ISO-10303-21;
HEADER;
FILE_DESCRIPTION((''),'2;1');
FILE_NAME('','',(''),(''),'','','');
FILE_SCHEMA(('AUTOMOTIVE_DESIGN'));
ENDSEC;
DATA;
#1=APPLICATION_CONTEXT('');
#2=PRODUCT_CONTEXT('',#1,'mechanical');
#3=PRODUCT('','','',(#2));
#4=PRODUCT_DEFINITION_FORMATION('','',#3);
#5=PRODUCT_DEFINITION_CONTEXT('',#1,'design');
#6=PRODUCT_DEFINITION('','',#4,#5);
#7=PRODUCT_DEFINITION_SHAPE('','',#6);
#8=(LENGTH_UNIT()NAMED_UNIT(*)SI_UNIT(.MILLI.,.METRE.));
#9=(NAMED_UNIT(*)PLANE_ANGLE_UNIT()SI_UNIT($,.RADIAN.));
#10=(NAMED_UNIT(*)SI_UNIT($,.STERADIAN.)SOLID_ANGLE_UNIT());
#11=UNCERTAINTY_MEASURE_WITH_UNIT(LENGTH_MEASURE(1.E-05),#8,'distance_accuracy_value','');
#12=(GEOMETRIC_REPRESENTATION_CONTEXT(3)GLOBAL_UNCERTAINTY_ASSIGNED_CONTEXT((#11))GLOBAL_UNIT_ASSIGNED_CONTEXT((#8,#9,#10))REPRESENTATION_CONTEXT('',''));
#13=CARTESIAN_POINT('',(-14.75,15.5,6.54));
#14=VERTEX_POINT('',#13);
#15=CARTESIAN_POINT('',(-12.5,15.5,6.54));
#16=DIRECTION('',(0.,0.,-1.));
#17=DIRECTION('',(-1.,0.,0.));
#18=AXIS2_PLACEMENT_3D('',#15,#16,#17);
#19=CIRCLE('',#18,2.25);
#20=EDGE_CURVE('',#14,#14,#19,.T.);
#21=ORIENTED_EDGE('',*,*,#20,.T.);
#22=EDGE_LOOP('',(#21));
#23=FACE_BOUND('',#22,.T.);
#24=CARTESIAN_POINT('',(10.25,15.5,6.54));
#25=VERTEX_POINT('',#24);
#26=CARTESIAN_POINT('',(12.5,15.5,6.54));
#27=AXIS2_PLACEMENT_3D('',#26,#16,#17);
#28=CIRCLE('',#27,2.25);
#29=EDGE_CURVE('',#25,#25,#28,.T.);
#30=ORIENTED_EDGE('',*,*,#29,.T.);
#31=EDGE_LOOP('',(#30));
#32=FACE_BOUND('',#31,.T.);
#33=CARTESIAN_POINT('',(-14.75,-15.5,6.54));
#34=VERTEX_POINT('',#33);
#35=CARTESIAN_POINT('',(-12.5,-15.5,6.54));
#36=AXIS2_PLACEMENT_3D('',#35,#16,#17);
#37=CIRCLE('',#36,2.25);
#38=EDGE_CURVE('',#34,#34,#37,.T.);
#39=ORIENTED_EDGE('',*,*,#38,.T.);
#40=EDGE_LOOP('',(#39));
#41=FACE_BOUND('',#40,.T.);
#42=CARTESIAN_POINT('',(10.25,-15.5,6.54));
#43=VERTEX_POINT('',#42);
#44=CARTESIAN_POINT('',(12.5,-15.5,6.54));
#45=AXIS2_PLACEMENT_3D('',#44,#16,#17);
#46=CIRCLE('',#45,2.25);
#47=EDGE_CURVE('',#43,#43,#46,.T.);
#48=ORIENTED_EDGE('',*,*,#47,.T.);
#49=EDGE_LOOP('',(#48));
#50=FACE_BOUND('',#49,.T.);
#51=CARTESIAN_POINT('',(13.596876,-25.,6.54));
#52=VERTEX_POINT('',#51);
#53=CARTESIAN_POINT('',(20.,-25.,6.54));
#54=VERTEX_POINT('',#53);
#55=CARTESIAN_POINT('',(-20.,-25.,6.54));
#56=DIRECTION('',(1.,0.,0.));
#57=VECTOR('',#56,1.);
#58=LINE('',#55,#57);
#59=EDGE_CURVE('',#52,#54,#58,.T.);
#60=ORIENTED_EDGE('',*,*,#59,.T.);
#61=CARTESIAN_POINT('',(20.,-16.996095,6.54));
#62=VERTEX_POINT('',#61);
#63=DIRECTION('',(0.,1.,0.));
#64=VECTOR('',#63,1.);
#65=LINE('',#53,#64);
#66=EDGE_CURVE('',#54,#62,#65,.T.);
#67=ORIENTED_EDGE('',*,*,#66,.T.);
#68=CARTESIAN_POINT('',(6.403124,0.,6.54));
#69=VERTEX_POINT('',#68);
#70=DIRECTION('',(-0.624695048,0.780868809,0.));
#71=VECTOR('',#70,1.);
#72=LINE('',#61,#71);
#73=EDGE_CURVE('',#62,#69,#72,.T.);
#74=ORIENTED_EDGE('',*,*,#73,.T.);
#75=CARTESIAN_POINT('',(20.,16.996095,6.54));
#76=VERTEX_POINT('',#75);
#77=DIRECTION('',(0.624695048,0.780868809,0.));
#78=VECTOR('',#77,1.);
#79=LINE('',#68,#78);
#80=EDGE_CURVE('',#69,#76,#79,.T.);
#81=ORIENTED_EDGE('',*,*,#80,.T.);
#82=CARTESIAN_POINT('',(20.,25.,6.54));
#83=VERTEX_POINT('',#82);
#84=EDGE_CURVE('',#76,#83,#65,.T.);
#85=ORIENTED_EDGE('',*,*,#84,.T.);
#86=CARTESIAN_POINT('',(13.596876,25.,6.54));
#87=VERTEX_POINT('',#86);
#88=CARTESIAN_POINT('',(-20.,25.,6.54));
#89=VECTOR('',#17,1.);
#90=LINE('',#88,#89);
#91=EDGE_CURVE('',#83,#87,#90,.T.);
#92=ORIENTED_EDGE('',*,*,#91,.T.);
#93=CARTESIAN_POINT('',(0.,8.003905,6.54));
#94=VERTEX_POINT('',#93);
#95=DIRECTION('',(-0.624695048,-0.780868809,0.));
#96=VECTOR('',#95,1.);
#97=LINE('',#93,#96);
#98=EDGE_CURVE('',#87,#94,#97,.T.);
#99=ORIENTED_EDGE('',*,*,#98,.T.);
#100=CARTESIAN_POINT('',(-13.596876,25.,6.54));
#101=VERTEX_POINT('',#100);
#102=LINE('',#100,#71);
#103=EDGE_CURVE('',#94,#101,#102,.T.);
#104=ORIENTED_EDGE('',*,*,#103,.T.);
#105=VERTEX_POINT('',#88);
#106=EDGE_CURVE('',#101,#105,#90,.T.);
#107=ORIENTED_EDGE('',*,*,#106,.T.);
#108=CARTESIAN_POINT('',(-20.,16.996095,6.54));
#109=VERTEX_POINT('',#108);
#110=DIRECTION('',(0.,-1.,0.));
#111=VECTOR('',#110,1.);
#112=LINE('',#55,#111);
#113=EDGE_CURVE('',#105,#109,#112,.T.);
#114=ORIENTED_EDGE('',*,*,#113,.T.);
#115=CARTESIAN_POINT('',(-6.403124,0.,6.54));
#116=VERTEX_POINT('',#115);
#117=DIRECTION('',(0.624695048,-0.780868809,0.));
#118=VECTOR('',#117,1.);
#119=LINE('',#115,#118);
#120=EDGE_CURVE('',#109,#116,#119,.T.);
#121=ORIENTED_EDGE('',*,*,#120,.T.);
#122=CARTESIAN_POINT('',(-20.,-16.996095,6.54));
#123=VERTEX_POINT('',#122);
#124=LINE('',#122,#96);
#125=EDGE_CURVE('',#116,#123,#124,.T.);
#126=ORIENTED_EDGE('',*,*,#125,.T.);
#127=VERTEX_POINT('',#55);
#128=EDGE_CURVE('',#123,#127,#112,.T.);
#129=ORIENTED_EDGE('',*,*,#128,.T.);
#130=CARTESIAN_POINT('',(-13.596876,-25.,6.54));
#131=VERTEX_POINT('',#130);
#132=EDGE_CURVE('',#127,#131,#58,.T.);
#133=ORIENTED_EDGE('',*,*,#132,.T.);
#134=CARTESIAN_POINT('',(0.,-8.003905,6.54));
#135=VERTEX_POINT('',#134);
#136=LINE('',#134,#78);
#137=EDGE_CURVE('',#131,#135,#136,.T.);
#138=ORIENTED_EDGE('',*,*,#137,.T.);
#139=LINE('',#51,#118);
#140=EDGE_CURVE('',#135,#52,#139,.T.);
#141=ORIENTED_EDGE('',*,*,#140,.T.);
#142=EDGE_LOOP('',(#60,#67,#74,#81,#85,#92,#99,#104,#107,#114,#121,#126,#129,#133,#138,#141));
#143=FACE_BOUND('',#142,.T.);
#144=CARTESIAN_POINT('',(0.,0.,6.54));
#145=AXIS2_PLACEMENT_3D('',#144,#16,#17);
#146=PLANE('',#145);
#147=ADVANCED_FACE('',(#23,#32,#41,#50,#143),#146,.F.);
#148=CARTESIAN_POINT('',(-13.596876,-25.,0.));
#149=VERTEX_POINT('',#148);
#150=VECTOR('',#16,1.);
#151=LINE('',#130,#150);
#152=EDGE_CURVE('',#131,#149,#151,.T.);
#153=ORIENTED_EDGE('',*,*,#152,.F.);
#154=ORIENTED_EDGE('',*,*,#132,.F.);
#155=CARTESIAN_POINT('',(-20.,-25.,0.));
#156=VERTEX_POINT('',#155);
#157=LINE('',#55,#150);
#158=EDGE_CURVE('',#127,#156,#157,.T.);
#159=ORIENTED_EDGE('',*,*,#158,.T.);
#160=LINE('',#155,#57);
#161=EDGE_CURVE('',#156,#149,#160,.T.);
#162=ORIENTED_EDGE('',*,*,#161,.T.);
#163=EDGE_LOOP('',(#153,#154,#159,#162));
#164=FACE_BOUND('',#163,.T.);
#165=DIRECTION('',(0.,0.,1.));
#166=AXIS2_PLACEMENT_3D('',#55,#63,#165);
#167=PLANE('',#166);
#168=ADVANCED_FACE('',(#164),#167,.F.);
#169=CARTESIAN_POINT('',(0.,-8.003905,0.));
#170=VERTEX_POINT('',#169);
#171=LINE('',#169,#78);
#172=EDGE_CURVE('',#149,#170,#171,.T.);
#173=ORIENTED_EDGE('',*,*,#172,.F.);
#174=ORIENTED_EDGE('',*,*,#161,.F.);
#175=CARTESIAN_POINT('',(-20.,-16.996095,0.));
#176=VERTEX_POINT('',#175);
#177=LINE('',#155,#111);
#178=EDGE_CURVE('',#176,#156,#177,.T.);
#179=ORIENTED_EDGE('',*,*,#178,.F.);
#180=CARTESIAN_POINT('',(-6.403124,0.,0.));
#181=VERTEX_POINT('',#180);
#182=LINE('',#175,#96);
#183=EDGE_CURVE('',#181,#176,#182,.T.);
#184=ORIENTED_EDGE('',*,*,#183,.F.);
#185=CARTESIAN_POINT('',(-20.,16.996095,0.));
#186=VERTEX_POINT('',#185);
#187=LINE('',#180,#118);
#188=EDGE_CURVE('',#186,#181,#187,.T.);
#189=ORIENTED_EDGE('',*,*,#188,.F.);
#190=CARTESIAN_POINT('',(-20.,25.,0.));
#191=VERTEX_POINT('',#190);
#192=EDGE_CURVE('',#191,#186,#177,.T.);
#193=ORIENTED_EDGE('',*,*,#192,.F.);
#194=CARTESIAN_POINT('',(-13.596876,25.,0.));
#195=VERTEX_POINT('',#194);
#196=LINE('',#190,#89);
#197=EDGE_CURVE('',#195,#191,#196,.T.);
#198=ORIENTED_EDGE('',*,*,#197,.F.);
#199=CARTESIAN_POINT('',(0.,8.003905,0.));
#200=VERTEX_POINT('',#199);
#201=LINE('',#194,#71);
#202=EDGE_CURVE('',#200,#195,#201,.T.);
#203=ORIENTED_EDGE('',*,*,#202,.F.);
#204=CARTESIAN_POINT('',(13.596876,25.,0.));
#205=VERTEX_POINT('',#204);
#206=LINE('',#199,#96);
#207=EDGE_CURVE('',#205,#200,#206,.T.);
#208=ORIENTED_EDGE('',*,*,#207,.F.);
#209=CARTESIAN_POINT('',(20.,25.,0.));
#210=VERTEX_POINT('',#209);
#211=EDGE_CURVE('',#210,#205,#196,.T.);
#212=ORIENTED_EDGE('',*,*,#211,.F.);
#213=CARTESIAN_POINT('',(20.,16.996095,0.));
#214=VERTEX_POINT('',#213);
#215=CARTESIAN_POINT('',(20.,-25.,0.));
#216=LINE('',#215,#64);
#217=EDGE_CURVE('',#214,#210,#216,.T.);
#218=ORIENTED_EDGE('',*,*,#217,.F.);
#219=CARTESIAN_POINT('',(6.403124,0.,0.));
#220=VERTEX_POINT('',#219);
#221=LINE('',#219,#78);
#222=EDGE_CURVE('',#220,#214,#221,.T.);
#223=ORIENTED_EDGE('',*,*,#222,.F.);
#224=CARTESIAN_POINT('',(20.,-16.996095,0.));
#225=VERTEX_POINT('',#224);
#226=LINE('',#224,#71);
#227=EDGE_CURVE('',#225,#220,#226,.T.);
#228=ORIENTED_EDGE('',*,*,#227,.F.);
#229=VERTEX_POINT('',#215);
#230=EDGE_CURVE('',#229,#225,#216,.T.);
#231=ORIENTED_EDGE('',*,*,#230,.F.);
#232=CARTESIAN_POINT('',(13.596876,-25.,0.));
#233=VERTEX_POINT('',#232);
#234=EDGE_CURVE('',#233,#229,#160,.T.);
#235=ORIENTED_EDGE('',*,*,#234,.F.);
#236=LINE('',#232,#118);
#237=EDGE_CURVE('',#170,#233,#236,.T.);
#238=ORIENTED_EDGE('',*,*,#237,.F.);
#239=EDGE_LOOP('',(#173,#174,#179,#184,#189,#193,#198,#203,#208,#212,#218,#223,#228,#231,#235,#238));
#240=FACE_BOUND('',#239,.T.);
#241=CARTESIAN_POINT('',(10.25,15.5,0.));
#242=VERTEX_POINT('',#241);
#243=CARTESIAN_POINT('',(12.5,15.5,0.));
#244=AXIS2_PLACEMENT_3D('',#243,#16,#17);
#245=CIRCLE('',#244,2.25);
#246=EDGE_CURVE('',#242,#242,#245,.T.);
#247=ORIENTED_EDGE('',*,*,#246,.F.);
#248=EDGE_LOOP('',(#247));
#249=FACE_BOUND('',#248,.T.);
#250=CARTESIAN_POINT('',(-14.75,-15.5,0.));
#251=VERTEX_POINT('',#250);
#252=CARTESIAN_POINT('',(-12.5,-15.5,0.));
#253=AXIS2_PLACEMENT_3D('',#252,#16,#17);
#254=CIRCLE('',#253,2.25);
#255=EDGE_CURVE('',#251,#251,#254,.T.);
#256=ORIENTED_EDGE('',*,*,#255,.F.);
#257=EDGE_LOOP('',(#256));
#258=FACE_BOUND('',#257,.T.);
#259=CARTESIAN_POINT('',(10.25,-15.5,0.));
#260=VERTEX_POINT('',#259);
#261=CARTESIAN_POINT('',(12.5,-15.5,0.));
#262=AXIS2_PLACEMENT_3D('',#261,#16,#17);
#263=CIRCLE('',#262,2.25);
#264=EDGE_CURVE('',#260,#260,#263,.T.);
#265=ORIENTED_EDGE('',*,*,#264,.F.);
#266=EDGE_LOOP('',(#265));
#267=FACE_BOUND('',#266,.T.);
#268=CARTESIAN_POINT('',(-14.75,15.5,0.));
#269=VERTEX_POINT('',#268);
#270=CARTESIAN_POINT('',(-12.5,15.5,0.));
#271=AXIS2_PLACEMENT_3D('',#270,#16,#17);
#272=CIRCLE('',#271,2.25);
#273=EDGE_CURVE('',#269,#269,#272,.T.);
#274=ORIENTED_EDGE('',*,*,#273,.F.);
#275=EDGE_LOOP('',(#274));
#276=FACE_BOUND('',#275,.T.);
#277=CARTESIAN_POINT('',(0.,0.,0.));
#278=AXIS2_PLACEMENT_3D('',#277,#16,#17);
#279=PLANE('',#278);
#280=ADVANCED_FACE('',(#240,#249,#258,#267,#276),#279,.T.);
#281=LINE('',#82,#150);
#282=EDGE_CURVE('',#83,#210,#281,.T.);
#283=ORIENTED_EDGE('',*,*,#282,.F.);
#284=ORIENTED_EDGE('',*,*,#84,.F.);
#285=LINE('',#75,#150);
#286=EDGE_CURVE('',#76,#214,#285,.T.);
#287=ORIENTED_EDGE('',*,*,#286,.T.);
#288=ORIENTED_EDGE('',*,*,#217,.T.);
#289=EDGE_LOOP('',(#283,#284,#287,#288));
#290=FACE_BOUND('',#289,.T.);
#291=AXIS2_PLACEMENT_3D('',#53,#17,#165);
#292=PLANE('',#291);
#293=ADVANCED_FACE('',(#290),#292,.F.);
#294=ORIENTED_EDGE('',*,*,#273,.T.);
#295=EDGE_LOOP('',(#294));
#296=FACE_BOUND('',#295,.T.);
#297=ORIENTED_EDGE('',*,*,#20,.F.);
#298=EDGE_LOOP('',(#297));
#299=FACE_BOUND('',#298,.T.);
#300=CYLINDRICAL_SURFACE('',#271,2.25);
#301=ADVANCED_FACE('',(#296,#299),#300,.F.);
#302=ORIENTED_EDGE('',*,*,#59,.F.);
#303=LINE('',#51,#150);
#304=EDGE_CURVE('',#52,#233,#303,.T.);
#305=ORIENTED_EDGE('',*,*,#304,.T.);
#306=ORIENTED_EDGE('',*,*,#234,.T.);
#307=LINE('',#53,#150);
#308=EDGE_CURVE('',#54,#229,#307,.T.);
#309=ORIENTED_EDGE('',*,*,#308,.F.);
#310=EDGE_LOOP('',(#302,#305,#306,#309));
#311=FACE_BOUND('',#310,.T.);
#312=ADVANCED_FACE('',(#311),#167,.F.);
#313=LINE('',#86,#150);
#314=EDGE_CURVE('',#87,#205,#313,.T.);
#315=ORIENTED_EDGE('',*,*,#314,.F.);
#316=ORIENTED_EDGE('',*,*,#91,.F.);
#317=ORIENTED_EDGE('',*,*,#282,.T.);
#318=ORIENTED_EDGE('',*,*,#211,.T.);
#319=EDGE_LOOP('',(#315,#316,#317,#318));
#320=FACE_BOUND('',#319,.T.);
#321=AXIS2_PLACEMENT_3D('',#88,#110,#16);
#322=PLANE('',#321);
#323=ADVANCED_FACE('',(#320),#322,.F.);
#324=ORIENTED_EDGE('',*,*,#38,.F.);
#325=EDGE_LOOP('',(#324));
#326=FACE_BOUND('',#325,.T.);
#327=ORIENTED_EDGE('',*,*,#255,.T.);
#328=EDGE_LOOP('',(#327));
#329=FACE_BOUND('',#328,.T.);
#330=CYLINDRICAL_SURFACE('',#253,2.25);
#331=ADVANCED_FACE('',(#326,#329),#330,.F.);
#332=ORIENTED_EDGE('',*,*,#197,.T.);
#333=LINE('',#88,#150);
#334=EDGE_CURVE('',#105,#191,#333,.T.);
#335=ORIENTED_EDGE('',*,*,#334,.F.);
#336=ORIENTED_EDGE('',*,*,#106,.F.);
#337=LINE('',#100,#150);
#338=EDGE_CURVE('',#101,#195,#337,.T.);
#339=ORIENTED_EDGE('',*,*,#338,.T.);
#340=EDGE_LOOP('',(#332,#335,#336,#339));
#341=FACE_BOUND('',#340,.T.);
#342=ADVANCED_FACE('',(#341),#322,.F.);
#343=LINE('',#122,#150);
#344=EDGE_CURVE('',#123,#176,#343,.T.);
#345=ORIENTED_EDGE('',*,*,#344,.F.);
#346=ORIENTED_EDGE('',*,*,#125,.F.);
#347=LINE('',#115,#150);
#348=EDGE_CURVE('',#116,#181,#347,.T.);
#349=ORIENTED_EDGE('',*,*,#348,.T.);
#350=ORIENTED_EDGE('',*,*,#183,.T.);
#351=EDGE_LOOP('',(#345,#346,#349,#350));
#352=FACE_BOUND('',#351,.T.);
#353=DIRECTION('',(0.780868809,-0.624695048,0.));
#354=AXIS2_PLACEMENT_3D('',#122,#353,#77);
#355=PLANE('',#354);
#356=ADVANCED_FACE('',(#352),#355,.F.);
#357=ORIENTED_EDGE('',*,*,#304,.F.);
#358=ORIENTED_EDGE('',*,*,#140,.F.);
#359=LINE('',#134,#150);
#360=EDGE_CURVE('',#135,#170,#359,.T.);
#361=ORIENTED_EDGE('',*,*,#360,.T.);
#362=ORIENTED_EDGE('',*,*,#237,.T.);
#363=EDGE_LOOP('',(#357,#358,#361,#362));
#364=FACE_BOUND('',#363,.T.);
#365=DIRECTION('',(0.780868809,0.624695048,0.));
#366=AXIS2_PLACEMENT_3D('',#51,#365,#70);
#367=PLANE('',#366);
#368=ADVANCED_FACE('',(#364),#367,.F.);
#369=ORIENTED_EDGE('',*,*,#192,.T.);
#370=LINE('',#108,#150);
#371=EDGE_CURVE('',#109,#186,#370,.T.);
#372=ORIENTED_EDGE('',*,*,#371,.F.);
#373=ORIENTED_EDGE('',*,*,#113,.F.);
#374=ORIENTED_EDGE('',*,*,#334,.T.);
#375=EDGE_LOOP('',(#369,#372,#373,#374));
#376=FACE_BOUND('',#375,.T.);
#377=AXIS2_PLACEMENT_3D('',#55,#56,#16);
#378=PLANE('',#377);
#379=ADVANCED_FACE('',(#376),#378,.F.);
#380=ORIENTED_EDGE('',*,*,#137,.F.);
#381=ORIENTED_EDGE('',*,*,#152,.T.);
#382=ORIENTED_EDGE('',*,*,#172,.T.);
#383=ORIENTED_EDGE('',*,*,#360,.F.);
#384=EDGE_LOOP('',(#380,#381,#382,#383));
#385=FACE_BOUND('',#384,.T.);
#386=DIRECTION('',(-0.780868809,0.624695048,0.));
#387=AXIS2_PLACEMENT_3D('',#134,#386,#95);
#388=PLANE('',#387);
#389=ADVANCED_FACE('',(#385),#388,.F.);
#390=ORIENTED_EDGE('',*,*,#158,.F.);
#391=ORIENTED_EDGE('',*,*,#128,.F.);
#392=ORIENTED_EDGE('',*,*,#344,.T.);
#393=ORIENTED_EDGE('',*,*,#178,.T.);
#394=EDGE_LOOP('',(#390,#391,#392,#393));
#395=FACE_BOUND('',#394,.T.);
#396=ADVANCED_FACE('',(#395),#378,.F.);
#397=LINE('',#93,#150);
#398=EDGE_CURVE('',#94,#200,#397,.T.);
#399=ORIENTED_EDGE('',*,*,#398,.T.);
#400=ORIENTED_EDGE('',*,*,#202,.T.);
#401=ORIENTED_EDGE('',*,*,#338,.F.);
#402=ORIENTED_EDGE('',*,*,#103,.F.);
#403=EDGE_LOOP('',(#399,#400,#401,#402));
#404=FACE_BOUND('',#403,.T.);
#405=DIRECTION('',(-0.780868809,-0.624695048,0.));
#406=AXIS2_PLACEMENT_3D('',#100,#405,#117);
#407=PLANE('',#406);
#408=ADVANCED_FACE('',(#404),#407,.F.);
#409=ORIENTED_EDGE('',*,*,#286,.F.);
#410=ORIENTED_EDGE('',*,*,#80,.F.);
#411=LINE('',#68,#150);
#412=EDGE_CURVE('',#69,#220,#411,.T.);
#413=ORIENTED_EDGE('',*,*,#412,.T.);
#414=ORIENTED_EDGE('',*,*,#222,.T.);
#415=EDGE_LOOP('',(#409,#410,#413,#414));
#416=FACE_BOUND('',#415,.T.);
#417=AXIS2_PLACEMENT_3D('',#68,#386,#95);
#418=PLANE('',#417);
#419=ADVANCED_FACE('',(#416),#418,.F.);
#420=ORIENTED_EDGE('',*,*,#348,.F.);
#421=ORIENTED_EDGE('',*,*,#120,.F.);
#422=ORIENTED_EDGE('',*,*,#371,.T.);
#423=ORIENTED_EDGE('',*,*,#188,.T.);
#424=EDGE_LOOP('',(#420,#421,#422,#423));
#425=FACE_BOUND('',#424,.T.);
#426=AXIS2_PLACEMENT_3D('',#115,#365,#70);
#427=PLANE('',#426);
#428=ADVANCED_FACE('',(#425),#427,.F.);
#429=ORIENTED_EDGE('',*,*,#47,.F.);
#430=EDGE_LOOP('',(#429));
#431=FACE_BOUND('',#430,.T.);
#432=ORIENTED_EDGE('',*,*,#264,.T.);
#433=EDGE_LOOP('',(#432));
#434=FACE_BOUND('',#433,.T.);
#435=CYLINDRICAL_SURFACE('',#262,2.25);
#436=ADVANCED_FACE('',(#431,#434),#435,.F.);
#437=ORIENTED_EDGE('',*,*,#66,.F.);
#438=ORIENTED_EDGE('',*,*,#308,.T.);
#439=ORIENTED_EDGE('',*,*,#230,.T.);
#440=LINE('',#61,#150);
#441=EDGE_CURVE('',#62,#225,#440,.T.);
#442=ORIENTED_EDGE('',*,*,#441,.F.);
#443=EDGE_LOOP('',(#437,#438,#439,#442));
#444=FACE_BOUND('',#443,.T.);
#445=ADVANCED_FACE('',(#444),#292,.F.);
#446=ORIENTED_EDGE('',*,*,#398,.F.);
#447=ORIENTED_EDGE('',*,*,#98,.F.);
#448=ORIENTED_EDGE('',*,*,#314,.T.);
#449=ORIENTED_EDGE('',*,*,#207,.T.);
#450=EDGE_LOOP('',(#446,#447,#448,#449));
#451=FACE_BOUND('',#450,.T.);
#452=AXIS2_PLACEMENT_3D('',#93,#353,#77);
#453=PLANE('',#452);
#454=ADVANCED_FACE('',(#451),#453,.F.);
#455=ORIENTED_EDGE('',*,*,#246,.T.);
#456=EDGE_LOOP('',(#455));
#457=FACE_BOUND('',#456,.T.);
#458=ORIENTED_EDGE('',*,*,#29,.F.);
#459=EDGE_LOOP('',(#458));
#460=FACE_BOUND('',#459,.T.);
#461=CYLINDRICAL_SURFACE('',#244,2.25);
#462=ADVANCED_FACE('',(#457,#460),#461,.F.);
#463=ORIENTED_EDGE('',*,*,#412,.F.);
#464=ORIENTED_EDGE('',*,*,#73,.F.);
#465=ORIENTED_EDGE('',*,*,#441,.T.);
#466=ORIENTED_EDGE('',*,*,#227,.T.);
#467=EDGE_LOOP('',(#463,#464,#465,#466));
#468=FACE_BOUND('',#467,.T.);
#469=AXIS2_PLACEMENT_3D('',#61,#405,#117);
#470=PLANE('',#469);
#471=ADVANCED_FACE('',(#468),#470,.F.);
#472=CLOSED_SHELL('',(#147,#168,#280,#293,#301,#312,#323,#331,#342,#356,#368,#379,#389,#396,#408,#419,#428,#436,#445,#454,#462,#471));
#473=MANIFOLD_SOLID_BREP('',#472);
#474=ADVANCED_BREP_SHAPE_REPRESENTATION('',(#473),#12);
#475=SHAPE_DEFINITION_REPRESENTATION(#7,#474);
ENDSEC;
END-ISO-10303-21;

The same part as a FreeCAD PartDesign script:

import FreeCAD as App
import Part
import Sketcher


def add_polygon(sketch, points):
    """Adds a closed chain of lines whose ends are joined by coincident constraints."""
    first, n = sketch.GeometryCount, len(points)
    for a, b in zip(points, points[1:] + points[:1]):
        sketch.addGeometry(Part.LineSegment(App.Vector(*a, 0), App.Vector(*b, 0)), False)
    for i in range(n):
        sketch.addConstraint(Sketcher.Constraint("Coincident", first + i, 2, first + (i + 1) % n, 1))

doc = App.newDocument("Part")
body = doc.addObject("PartDesign::Body", "Body")

# Sketch on XY plane
sketch1 = body.newObject("Sketcher::SketchObject", "Sketch")
sketch1.AttachmentSupport = (doc.getObject("XY_Plane"), [""])
sketch1.MapMode = "FlatFace"
add_polygon(sketch1, [(-20, 25), (-20, -25), (20, -25), (20, 25)])  # lines 0-3
sketch1.addConstraint([
    Sketcher.Constraint("Vertical", 0),
    Sketcher.Constraint("Horizontal", 1),
    Sketcher.Constraint("Vertical", 2),
    Sketcher.Constraint("Horizontal", 3),
    Sketcher.Constraint("Symmetric", 0, 2, 2, 2, -1, 1),
    Sketcher.Constraint("DistanceX", 1, 1, 1, 2, 40.0),
    Sketcher.Constraint("DistanceY", 0, 2, 0, 1, 50.0),
])
pad1 = body.newObject("PartDesign::Pad", "Pad")
pad1.Profile = sketch1
pad1.Length = 6.54

# Sketch on XY plane
sketch2 = body.newObject("Sketcher::SketchObject", "Sketch001")
sketch2.AttachmentSupport = (doc.getObject("XY_Plane"), [""])
sketch2.MapMode = "FlatFace"
sketch2.addGeometry([
    Part.Circle(App.Vector(12.5, 15.5, 0), App.Vector(0, 0, 1), 2.2),
    Part.Circle(App.Vector(-12.5, 15.5, 0), App.Vector(0, 0, 1), 2.2),
    Part.Circle(App.Vector(-12.5, -15.5, 0), App.Vector(0, 0, 1), 2.2),
    Part.Circle(App.Vector(12.5, -15.5, 0), App.Vector(0, 0, 1), 2.2),
], False)
sketch2.addConstraint([
    Sketcher.Constraint("Equal", 0, 1),
    Sketcher.Constraint("Equal", 1, 2),
    Sketcher.Constraint("Equal", 2, 3),
    Sketcher.Constraint("Symmetric", 0, 3, 2, 3, -1, 1),
    Sketcher.Constraint("Symmetric", 1, 3, 3, 3, -1, 1),
    Sketcher.Constraint("Symmetric", 0, 3, 1, 3, -2),
    Sketcher.Constraint("Diameter", 0, 4.5),
    Sketcher.Constraint("DistanceX", 1, 3, 0, 3, 25.0),
    Sketcher.Constraint("DistanceY", 2, 3, 1, 3, 31.0),
])
doc.recompute()
hole = body.newObject("PartDesign::Hole", "Hole")
hole.Profile = sketch2
hole.ThreadType = "None"
hole.Diameter = 4.5
hole.DepthType = "ThroughAll"
hole.Reversed = True

# Sketch on XY plane
sketch3 = body.newObject("Sketcher::SketchObject", "Sketch002")
sketch3.AttachmentSupport = (doc.getObject("XY_Plane"), [""])
sketch3.MapMode = "FlatFace"
add_polygon(sketch3, [(-20, -17), (-20, 17), (-6, 0)])  # lines 0-2
add_polygon(sketch3, [(14, -25), (-14, -25), (0, -8)])  # lines 3-5
add_polygon(sketch3, [(20, 17), (20, -17), (6, 0)])  # lines 6-8
add_polygon(sketch3, [(-14, 25), (14, 25), (0, 8)])  # lines 9-11
sketch3.addConstraint([
    Sketcher.Constraint("Vertical", 0),
    Sketcher.Constraint("Horizontal", 3),
    Sketcher.Constraint("Vertical", 6),
    Sketcher.Constraint("Horizontal", 9),
    Sketcher.Constraint("Symmetric", 0, 2, 6, 2, -1, 1),
    Sketcher.Constraint("Symmetric", 1, 2, 7, 2, -1, 1),
    Sketcher.Constraint("Symmetric", 3, 2, 9, 2, -1, 1),
    Sketcher.Constraint("Symmetric", 4, 2, 10, 2, -1, 1),
    Sketcher.Constraint("PointOnObject", 1, 2, -1),
    Sketcher.Constraint("PointOnObject", 4, 2, -2),
    Sketcher.Constraint("Parallel", 2, 4),
    Sketcher.Constraint("Parallel", 1, 5),
    Sketcher.Constraint("Parallel", 4, 8),
    Sketcher.Constraint("Parallel", 7, 11),
    Sketcher.Constraint("Horizontal", 2, 2, 6, 2),
    Sketcher.Constraint("Equal", 2, 4),
    Sketcher.Constraint("DistanceX", 0, 2, -1, 1, 20.0),
    Sketcher.Constraint("DistanceY", 3, 2, -1, 1, 25.0),
    Sketcher.Constraint("DistanceX", 3, 2, 3, 1, 27.193752),
    Sketcher.Constraint("DistanceY", 0, 1, 0, 2, 33.992189),
])
pocket1 = body.newObject("PartDesign::Pocket", "Pocket")
pocket1.Profile = sketch3
pocket1.Type = "ThroughAll"
pocket1.Reversed = True

doc.recompute()
